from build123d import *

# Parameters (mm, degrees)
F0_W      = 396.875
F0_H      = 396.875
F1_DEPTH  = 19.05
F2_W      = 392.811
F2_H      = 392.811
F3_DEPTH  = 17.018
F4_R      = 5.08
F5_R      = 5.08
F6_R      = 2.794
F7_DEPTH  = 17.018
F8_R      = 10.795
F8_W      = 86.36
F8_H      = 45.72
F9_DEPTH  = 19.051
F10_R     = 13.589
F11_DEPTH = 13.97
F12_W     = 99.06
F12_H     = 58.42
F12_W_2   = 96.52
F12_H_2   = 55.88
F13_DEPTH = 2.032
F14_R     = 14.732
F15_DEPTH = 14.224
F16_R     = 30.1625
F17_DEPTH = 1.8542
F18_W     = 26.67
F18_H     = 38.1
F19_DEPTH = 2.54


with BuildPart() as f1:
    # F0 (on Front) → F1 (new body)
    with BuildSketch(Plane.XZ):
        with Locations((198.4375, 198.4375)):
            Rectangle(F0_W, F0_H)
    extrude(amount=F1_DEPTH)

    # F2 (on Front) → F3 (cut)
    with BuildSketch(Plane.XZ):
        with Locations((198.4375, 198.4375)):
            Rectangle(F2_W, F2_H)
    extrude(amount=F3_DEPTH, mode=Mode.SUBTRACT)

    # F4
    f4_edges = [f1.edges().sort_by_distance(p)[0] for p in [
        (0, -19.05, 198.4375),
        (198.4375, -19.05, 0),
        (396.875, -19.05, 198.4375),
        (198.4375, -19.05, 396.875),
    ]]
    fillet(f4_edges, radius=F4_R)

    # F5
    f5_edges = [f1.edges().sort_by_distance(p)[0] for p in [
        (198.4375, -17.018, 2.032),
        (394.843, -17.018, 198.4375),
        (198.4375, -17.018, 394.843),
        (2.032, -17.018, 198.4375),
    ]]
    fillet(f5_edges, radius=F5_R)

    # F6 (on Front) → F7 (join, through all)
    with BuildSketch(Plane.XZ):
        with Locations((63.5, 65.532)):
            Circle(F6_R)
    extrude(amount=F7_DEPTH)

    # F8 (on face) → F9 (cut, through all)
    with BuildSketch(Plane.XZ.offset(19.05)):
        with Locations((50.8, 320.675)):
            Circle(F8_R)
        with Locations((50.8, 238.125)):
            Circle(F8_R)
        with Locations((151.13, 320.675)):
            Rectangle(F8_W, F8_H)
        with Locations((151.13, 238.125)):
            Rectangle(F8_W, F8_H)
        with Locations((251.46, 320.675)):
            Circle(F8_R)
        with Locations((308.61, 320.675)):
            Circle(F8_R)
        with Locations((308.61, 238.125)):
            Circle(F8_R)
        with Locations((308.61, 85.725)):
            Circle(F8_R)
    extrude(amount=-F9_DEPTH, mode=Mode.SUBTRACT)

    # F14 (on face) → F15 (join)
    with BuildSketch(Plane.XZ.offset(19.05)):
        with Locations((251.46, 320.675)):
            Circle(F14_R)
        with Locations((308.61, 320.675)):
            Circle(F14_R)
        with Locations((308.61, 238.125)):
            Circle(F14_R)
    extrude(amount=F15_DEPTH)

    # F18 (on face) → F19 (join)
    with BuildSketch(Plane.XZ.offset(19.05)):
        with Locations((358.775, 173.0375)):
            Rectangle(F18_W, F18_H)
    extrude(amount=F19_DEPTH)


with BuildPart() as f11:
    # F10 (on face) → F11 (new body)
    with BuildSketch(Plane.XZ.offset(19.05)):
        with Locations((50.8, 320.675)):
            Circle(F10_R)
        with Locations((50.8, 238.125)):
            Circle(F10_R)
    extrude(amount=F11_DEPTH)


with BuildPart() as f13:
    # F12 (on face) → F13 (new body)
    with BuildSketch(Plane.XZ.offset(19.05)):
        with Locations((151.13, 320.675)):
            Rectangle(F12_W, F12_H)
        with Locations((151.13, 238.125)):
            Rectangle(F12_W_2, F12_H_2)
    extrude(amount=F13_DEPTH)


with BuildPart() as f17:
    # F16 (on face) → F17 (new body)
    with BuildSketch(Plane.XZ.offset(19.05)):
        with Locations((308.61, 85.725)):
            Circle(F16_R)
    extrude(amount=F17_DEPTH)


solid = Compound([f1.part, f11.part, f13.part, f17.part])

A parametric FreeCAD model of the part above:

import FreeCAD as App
import Part
import Sketcher

V = App.Vector
Q = App.Units.Quantity


def edges_at(feature, points):
    """Names of the edges that pass closest to the given points."""
    edges = feature.Shape.Edges
    near = lambda p: min(range(len(edges)), key=lambda i: edges[i].distToShape(Part.Vertex(*p))[0])
    return sorted({f"Edge{near(p) + 1}" for p in points})


def add_polygon(sketch, points):
    """Adds a closed chain of lines whose ends are joined by coincident constraints."""
    first, n = sketch.GeometryCount, len(points)
    for a, b in zip(points, points[1:] + points[:1]):
        sketch.addGeometry(Part.LineSegment(App.Vector(*a, 0), App.Vector(*b, 0)), False)
    for i in range(n):
        sketch.addConstraint(Sketcher.Constraint("Coincident", first + i, 2, first + (i + 1) % n, 1))

doc = App.newDocument("Part")
params = doc.addObject("Spreadsheet::Sheet", "Params")
for row, (alias, value) in enumerate([
    ("sketch1_width", "15.625 in"),
    ("pad1_length", "0.75 in"),
    ("sketch2_width", "15.465 in"),
    ("pocket1_length", "0.67 in"),
    ("fillet_radius", "0.2 in"),
    ("fillet2_radius", "0.2 in"),
    ("sketch3_diameter", "0.22 in"),
    ("sketch4_diameter", "0.85 in"),
    ("sketch4_width", "3.4 in"),
    ("sketch4_height", "1.8 in"),
    ("sketch5_diameter", "1.16 in"),
    ("pad3_length", "0.56 in"),
    ("sketch6_height", "1.5 in"),
    ("sketch6_width", "1.05 in"),
    ("pad4_length", "0.1 in"),
    ("sketch7_diameter", "1.07 in"),
    ("pad5_length", "0.55 in"),
    ("sketch8_width", "3.9 in"),
    ("sketch8_width2", "3.8 in"),
    ("sketch8_height", "2.3 in"),
    ("sketch8_height2", "2.2 in"),
    ("pad6_length", "0.08 in"),
    ("sketch9_diameter", "2.375 in"),
    ("pad7_length", "0.073 in"),
], start=1):
    params.set(f"A{row}", alias)
    params.set(f"B{row}", "=" + value)
    params.setAlias(f"B{row}", alias)

body = doc.addObject("PartDesign::Body", "Body")

# Sketch on XZ plane
sketch1 = body.newObject("Sketcher::SketchObject", "Sketch")
sketch1.AttachmentSupport = (doc.getObject("XZ_Plane"), [""])
sketch1.MapMode = "FlatFace"
add_polygon(sketch1, [(0, 397), (0, 0), (397, 0), (397, 397)])  # lines 0-3
sketch1.addConstraint([
    Sketcher.Constraint("Vertical", 0),
    Sketcher.Constraint("Horizontal", 1),
    Sketcher.Constraint("Vertical", 2),
    Sketcher.Constraint("Horizontal", 3),
    Sketcher.Constraint("Coincident", 0, 2, -1, 1),
    Sketcher.Constraint("Equal", 3, 0),
    Sketcher.Constraint("DistanceX", 1, 1, 1, 2, Q("15.625 in")),
])
sketch1.setExpression("Constraints[10]", "Params.sketch1_width")
pad1 = body.newObject("PartDesign::Pad", "Pad")
pad1.Profile = sketch1
pad1.setExpression("Length", "Params.pad1_length")

# Sketch on XZ plane
sketch2 = body.newObject("Sketcher::SketchObject", "Sketch001")
sketch2.AttachmentSupport = (doc.getObject("XZ_Plane"), [""])
sketch2.MapMode = "FlatFace"
add_polygon(sketch2, [(2, 395), (2, 2), (395, 2), (395, 395)])  # lines 0-3
sketch2.addConstraint([
    Sketcher.Constraint("Vertical", 0),
    Sketcher.Constraint("Horizontal", 1),
    Sketcher.Constraint("Vertical", 2),
    Sketcher.Constraint("Horizontal", 3),
    Sketcher.Constraint("Equal", 3, 0),
    Sketcher.Constraint("DistanceX", 1, 1, 1, 2, Q("15.465 in")),
    Sketcher.Constraint("DistanceX", -1, 1, 0, 2, Q("0.08 in")),
    Sketcher.Constraint("DistanceY", -1, 1, 0, 2, Q("0.08 in")),
])
sketch2.setExpression("Constraints[9]", "Params.sketch2_width")
pocket1 = body.newObject("PartDesign::Pocket", "Pocket")
pocket1.Profile = sketch2
pocket1.setExpression("Length", "Params.pocket1_length")
pocket1.Reversed = True
doc.recompute()

fillet = body.newObject("PartDesign::Fillet", "Fillet")
fillet.Base = (pocket1, edges_at(pocket1, [
    (0, -19.05, 198.438),
    (198.438, -19.05, 0),
    (396.875, -19.05, 198.438),
    (198.438, -19.05, 396.875),
]))
fillet.setExpression("Radius", "Params.fillet_radius")
doc.recompute()

fillet2 = body.newObject("PartDesign::Fillet", "Fillet001")
fillet2.Base = (fillet, edges_at(fillet, [
    (198.438, -17.018, 2.032),
    (394.843, -17.018, 198.438),
    (198.438, -17.018, 394.843),
    (2.032, -17.018, 198.438),
]))
fillet2.setExpression("Radius", "Params.fillet2_radius")

# Sketch on XZ plane
sketch3 = body.newObject("Sketcher::SketchObject", "Sketch002")
sketch3.AttachmentSupport = (doc.getObject("XZ_Plane"), [""])
sketch3.MapMode = "FlatFace"
sketch3.addGeometry(Part.Circle(V(63.5, 65.5, 0), V(0, 0, 1), 2.8), False)
sketch3.addConstraint([
    Sketcher.Constraint("Diameter", 0, Q("0.22 in")),
    Sketcher.Constraint("DistanceX", -1, 1, 0, 3, Q("2.5 in")),
    Sketcher.Constraint("DistanceY", -1, 1, 0, 3, Q("2.58 in")),
])
sketch3.setExpression("Constraints[0]", "Params.sketch3_diameter")
pad2 = body.newObject("PartDesign::Pad", "Pad001")
pad2.Profile = sketch3
pad2.Type = "UpToLast"

# Sketch on XZ plane
sketch4 = body.newObject("Sketcher::SketchObject", "Sketch003")
sketch4.AttachmentSupport = (doc.getObject("XZ_Plane"), [""])
sketch4.MapMode = "FlatFace"
sketch4.AttachmentOffset = App.Placement(V(0, 0, 0.75 * 25.4), App.Rotation())
sketch4.addGeometry(Part.Circle(V(51, 321, 0), V(0, 0, 1), 11), False)  # 0
sketch4.addGeometry(Part.Circle(V(51, 238, 0), V(0, 0, 1), 11), False)  # 1
add_polygon(sketch4, [(108, 344), (108, 298), (194, 298), (194, 344)])  # lines 2-5
add_polygon(sketch4, [(108, 261), (108, 215), (194, 215), (194, 261)])  # lines 6-9
sketch4.addGeometry(Part.Circle(V(251, 321, 0), V(0, 0, 1), 11), False)  # 10
sketch4.addGeometry(Part.Circle(V(309, 321, 0), V(0, 0, 1), 11), False)  # 11
sketch4.addGeometry(Part.Circle(V(309, 238, 0), V(0, 0, 1), 11), False)  # 12
sketch4.addGeometry(Part.Circle(V(309, 86, 0), V(0, 0, 1), 11), False)  # 13
sketch4.addConstraint([
    Sketcher.Constraint("Vertical", 2),
    Sketcher.Constraint("Horizontal", 3),
    Sketcher.Constraint("Vertical", 4),
    Sketcher.Constraint("Horizontal", 5),
    Sketcher.Constraint("Vertical", 6),
    Sketcher.Constraint("Horizontal", 7),
    Sketcher.Constraint("Vertical", 8),
    Sketcher.Constraint("Horizontal", 9),
    Sketcher.Constraint("Equal", 0, 1),
    Sketcher.Constraint("Equal", 1, 10),
    Sketcher.Constraint("Equal", 10, 11),
    Sketcher.Constraint("Equal", 11, 12),
    Sketcher.Constraint("Equal", 12, 13),
    Sketcher.Constraint("Horizontal", 0, 3, 10, 3),
    Sketcher.Constraint("Horizontal", 10, 3, 11, 3),
    Sketcher.Constraint("Horizontal", 1, 3, 12, 3),
    Sketcher.Constraint("Vertical", 0, 3, 1, 3),
    Sketcher.Constraint("Vertical", 11, 3, 12, 3),
    Sketcher.Constraint("Vertical", 12, 3, 13, 3),
    Sketcher.Constraint("Vertical", 5, 2, 6, 2),
    Sketcher.Constraint("Vertical", 4, 2, 7, 2),
    Sketcher.Constraint("Equal", 4, 6),
    Sketcher.Constraint("Diameter", 0, Q("0.85 in")),
    Sketcher.Constraint("DistanceX", 3, 1, 3, 2, Q("3.4 in")),
    Sketcher.Constraint("DistanceY", 2, 2, 2, 1, Q("1.8 in")),
    Sketcher.Constraint("DistanceX", -1, 1, 0, 3, Q("2 in")),
    Sketcher.Constraint("DistanceY", 13, 3, 12, 3, Q("6 in")),
    Sketcher.Constraint("DistanceX", -1, 1, 10, 3, Q("9.9 in")),
    Sketcher.Constraint("DistanceY", 2, 2, 0, 3, Q("0.9 in")),
    Sketcher.Constraint("DistanceX", 2, 2, 11, 3, Q("7.9 in")),
    Sketcher.Constraint("DistanceY", 6, 2, 1, 3, Q("0.9 in")),
    Sketcher.Constraint("DistanceX", -1, 1, 11, 3, Q("12.15 in")),
    Sketcher.Constraint("DistanceY", 1, 3, 0, 3, Q("3.25 in")),
    Sketcher.Constraint("DistanceY", -1, 1, 0, 3, Q("12.625 in")),
])
sketch4.setExpression("Constraints[30]", "Params.sketch4_diameter")
sketch4.setExpression("Constraints[31]", "Params.sketch4_width")
sketch4.setExpression("Constraints[32]", "Params.sketch4_height")
pocket2 = body.newObject("PartDesign::Pocket", "Pocket001")
pocket2.Profile = sketch4
pocket2.Type = "ThroughAll"

# Sketch on XZ plane
sketch5 = body.newObject("Sketcher::SketchObject", "Sketch004")
sketch5.AttachmentSupport = (doc.getObject("XZ_Plane"), [""])
sketch5.MapMode = "FlatFace"
sketch5.AttachmentOffset = App.Placement(V(0, 0, 0.75 * 25.4), App.Rotation())
sketch5.addGeometry([
    Part.Circle(V(251, 321, 0), V(0, 0, 1), 15),
    Part.Circle(V(309, 321, 0), V(0, 0, 1), 15),
    Part.Circle(V(309, 238, 0), V(0, 0, 1), 15),
], False)
sketch5.addConstraint([
    Sketcher.Constraint("Equal", 0, 1),
    Sketcher.Constraint("Equal", 1, 2),
    Sketcher.Constraint("Horizontal", 0, 3, 1, 3),
    Sketcher.Constraint("Vertical", 1, 3, 2, 3),
    Sketcher.Constraint("Diameter", 0, Q("1.16 in")),
    Sketcher.Constraint("DistanceX", -1, 1, 0, 3, Q("9.9 in")),
    Sketcher.Constraint("DistanceX", -1, 1, 1, 3, Q("12.15 in")),
    Sketcher.Constraint("DistanceY", 2, 3, 1, 3, Q("3.25 in")),
    Sketcher.Constraint("DistanceY", -1, 1, 0, 3, Q("12.625 in")),
])
sketch5.setExpression("Constraints[4]", "Params.sketch5_diameter")
pad3 = body.newObject("PartDesign::Pad", "Pad002")
pad3.Profile = sketch5
pad3.setExpression("Length", "Params.pad3_length")

# Sketch on XZ plane
sketch6 = body.newObject("Sketcher::SketchObject", "Sketch005")
sketch6.AttachmentSupport = (doc.getObject("XZ_Plane"), [""])
sketch6.MapMode = "FlatFace"
sketch6.AttachmentOffset = App.Placement(V(0, 0, 0.75 * 25.4), App.Rotation())
add_polygon(sketch6, [(345, 192), (345, 154), (372, 154), (372, 192)])  # lines 0-3
sketch6.addConstraint([
    Sketcher.Constraint("Vertical", 0),
    Sketcher.Constraint("Horizontal", 1),
    Sketcher.Constraint("Vertical", 2),
    Sketcher.Constraint("Horizontal", 3),
    Sketcher.Constraint("DistanceY", 0, 2, 0, 1, Q("1.5 in")),
    Sketcher.Constraint("DistanceX", 1, 1, 1, 2, Q("1.05 in")),
    Sketcher.Constraint("DistanceX", -1, 1, 0, 2, Q("13.6 in")),
    Sketcher.Constraint("DistanceY", -1, 1, 0, 2, Q("6.0625 in")),
])
sketch6.setExpression("Constraints[8]", "Params.sketch6_height")
sketch6.setExpression("Constraints[9]", "Params.sketch6_width")
pad4 = body.newObject("PartDesign::Pad", "Pad003")
pad4.Profile = sketch6
pad4.setExpression("Length", "Params.pad4_length")
body2 = doc.addObject("PartDesign::Body", "Body001")
body2.AllowCompound = True

# Sketch on XZ plane
sketch7 = body2.newObject("Sketcher::SketchObject", "Sketch006")
sketch7.AttachmentSupport = (doc.getObject("XZ_Plane001"), [""])
sketch7.MapMode = "FlatFace"
sketch7.AttachmentOffset = App.Placement(V(0, 0, 0.75 * 25.4), App.Rotation())
sketch7.addGeometry([
    Part.Circle(V(51, 321, 0), V(0, 0, 1), 14),
    Part.Circle(V(51, 238, 0), V(0, 0, 1), 14),
], False)
sketch7.addConstraint([
    Sketcher.Constraint("Equal", 0, 1),
    Sketcher.Constraint("Vertical", 0, 3, 1, 3),
    Sketcher.Constraint("Diameter", 0, Q("1.07 in")),
    Sketcher.Constraint("DistanceX", -1, 1, 0, 3, Q("2 in")),
    Sketcher.Constraint("DistanceY", 1, 3, 0, 3, Q("3.25 in")),
    Sketcher.Constraint("DistanceY", -1, 1, 0, 3, Q("12.625 in")),
])
sketch7.setExpression("Constraints[2]", "Params.sketch7_diameter")
pad5 = body2.newObject("PartDesign::Pad", "Pad004")
pad5.Profile = sketch7
pad5.setExpression("Length", "Params.pad5_length")
body3 = doc.addObject("PartDesign::Body", "Body002")
body3.AllowCompound = True

# Sketch on XZ plane
sketch8 = body3.newObject("Sketcher::SketchObject", "Sketch007")
sketch8.AttachmentSupport = (doc.getObject("XZ_Plane002"), [""])
sketch8.MapMode = "FlatFace"
sketch8.AttachmentOffset = App.Placement(V(0, 0, 0.75 * 25.4), App.Rotation())
add_polygon(sketch8, [(102, 350), (102, 291), (201, 291), (201, 350)])  # lines 0-3
add_polygon(sketch8, [(103, 266), (103, 210), (199, 210), (199, 266)])  # lines 4-7
sketch8.addConstraint([
    Sketcher.Constraint("Vertical", 0),
    Sketcher.Constraint("Horizontal", 1),
    Sketcher.Constraint("Vertical", 2),
    Sketcher.Constraint("Horizontal", 3),
    Sketcher.Constraint("Vertical", 4),
    Sketcher.Constraint("Horizontal", 5),
    Sketcher.Constraint("Vertical", 6),
    Sketcher.Constraint("Horizontal", 7),
    Sketcher.Constraint("DistanceX", 1, 1, 1, 2, Q("3.9 in")),
    Sketcher.Constraint("DistanceX", 5, 1, 5, 2, Q("3.8 in")),
    Sketcher.Constraint("DistanceY", 0, 2, 0, 1, Q("2.3 in")),
    Sketcher.Constraint("DistanceY", 4, 2, 4, 1, Q("2.2 in")),
    Sketcher.Constraint("DistanceX", -1, 1, 0, 2, Q("4 in")),
    Sketcher.Constraint("DistanceY", 6, 2, 1, 2, Q("1 in")),
    Sketcher.Constraint("DistanceX", -1, 1, 4, 2, Q("4.05 in")),
    Sketcher.Constraint("DistanceY", -1, 1, 0, 2, Q("11.475 in")),
])
sketch8.setExpression("Constraints[16]", "Params.sketch8_width")
sketch8.setExpression("Constraints[17]", "Params.sketch8_width2")
sketch8.setExpression("Constraints[18]", "Params.sketch8_height")
sketch8.setExpression("Constraints[19]", "Params.sketch8_height2")
pad6 = body3.newObject("PartDesign::Pad", "Pad005")
pad6.Profile = sketch8
pad6.setExpression("Length", "Params.pad6_length")
body4 = doc.addObject("PartDesign::Body", "Body003")

# Sketch on XZ plane
sketch9 = body4.newObject("Sketcher::SketchObject", "Sketch008")
sketch9.AttachmentSupport = (doc.getObject("XZ_Plane003"), [""])
sketch9.MapMode = "FlatFace"
sketch9.AttachmentOffset = App.Placement(V(0, 0, 0.75 * 25.4), App.Rotation())
sketch9.addGeometry(Part.Circle(V(309, 86, 0), V(0, 0, 1), 30), False)
sketch9.addConstraint([
    Sketcher.Constraint("Diameter", 0, Q("2.375 in")),
    Sketcher.Constraint("DistanceX", -1, 1, 0, 3, Q("12.15 in")),
    Sketcher.Constraint("DistanceY", -1, 1, 0, 3, Q("3.375 in")),
])
sketch9.setExpression("Constraints[0]", "Params.sketch9_diameter")
pad7 = body4.newObject("PartDesign::Pad", "Pad006")
pad7.Profile = sketch9
pad7.setExpression("Length", "Params.pad7_length")

doc.recompute()
